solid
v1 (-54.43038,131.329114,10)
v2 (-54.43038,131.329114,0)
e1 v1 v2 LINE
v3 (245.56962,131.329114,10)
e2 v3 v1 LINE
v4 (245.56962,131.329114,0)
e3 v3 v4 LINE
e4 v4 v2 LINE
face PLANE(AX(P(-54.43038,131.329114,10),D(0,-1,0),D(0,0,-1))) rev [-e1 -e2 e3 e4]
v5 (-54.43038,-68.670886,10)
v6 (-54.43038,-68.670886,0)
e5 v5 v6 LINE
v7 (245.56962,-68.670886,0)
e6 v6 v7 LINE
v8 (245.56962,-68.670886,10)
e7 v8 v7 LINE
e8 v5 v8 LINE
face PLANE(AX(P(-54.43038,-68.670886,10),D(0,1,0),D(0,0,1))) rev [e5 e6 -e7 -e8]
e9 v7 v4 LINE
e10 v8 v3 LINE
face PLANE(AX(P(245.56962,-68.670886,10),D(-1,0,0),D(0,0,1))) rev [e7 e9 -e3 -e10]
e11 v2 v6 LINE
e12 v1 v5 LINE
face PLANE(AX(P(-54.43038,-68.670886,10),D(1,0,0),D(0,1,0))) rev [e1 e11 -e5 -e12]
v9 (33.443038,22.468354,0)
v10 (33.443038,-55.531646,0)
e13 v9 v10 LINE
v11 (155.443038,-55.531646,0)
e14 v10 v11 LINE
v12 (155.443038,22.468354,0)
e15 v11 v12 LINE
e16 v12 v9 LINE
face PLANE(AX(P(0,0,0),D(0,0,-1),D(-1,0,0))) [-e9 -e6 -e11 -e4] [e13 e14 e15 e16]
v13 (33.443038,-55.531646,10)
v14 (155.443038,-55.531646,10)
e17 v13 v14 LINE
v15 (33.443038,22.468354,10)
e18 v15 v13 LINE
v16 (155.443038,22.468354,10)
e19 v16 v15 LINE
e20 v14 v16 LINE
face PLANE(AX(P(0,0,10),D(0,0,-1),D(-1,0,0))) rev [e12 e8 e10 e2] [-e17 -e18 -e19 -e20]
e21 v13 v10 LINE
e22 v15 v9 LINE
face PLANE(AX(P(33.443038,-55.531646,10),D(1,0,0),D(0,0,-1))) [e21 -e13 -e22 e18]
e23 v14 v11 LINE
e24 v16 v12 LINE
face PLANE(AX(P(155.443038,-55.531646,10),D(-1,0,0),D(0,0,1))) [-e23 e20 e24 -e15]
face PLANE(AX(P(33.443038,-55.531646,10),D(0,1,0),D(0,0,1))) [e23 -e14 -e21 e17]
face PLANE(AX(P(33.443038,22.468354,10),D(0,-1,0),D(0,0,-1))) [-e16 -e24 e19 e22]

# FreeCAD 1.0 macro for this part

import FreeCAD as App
import Part
import Sketcher
from FreeCAD import Vector
Q = App.Units.Quantity

doc = App.newDocument("Part")
body = doc.addObject("PartDesign::Body", "Body")

# Sketch on XY plane
sketch1 = doc.addObject("Sketcher::SketchObject", "Sketch")
body.addObject(sketch1)
sketch1.AttachmentSupport = (doc.XY_Plane, [""])
sketch1.MapMode = "FlatFace"
sketch1.addGeometry(Part.LineSegment(Vector(-54, 131, 0), Vector(-54, -69, 0)), False)
sketch1.addGeometry(Part.LineSegment(Vector(-54, -69, 0), Vector(246, -69, 0)), False)
sketch1.addGeometry(Part.LineSegment(Vector(246, -69, 0), Vector(246, 131, 0)), False)
sketch1.addGeometry(Part.LineSegment(Vector(246, 131, 0), Vector(-54, 131, 0)), False)
sketch1.addGeometry(Part.LineSegment(Vector(155, -56, 0), Vector(33, -56, 0)), False)
sketch1.addGeometry(Part.LineSegment(Vector(33, -56, 0), Vector(33, 22, 0)), False)
sketch1.addGeometry(Part.LineSegment(Vector(33, 22, 0), Vector(155, 22, 0)), False)
sketch1.addGeometry(Part.LineSegment(Vector(155, 22, 0), Vector(155, -56, 0)), False)
sketch1.addConstraint(Sketcher.Constraint("Coincident", 0, 2, 1, 1))
sketch1.addConstraint(Sketcher.Constraint("Coincident", 1, 2, 2, 1))
sketch1.addConstraint(Sketcher.Constraint("Coincident", 2, 2, 3, 1))
sketch1.addConstraint(Sketcher.Constraint("Coincident", 3, 2, 0, 1))
sketch1.addConstraint(Sketcher.Constraint("Coincident", 4, 2, 5, 1))
sketch1.addConstraint(Sketcher.Constraint("Coincident", 5, 2, 6, 1))
sketch1.addConstraint(Sketcher.Constraint("Coincident", 6, 2, 7, 1))
sketch1.addConstraint(Sketcher.Constraint("Coincident", 7, 2, 4, 1))
sketch1.addConstraint(Sketcher.Constraint("Vertical", 0))
sketch1.addConstraint(Sketcher.Constraint("Horizontal", 1))
sketch1.addConstraint(Sketcher.Constraint("Vertical", 2))
sketch1.addConstraint(Sketcher.Constraint("Horizontal", 3))
sketch1.addConstraint(Sketcher.Constraint("Horizontal", 4))
sketch1.addConstraint(Sketcher.Constraint("Vertical", 5))
sketch1.addConstraint(Sketcher.Constraint("Horizontal", 6))
sketch1.addConstraint(Sketcher.Constraint("Vertical", 7))
sketch1.addConstraint(Sketcher.Constraint("DistanceX", 1, 1, 1, 2, Q("300 mm")))
sketch1.addConstraint(Sketcher.Constraint("DistanceX", 4, 2, 4, 1, Q("122 mm")))
sketch1.addConstraint(Sketcher.Constraint("DistanceY", 0, 2, 0, 1, Q("200 mm")))
sketch1.addConstraint(Sketcher.Constraint("DistanceY", 5, 1, 5, 2, Q("78 mm")))
sketch1.addConstraint(Sketcher.Constraint("DistanceX", 0, 2, -1, 1, Q("54.43038 mm")))
sketch1.addConstraint(Sketcher.Constraint("DistanceY", 0, 2, 4, 2, Q("13.139241 mm")))
sketch1.addConstraint(Sketcher.Constraint("DistanceY", 0, 2, -1, 1, Q("68.670886 mm")))
sketch1.addConstraint(Sketcher.Constraint("DistanceX", -1, 1, 4, 2, Q("33.443038 mm")))
pad1 = doc.addObject("PartDesign::Pad", "Pad")
body.addObject(pad1)
pad1.Profile = sketch1
pad1.Length = 10

doc.recompute()
